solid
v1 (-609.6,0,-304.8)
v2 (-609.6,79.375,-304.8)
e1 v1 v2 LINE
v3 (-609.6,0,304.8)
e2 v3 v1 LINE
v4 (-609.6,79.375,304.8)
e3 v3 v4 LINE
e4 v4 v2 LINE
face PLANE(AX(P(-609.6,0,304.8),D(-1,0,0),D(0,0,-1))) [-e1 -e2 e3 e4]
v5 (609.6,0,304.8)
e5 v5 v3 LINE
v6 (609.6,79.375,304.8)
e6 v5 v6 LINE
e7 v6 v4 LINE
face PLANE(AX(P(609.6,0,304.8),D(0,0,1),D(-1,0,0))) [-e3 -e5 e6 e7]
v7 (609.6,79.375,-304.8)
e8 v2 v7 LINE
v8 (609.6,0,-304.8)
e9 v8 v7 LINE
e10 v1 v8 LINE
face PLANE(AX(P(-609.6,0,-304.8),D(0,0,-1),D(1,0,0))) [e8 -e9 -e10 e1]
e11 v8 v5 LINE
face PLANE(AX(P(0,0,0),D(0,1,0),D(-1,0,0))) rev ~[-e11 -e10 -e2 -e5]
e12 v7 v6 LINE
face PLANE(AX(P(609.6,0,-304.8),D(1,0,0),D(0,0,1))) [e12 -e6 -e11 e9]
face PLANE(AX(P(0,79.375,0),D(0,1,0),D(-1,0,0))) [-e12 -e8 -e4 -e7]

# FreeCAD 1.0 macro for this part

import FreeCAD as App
import Part
import Sketcher
Q = App.Units.Quantity

doc = App.newDocument("Part")
body = doc.addObject("PartDesign::Body", "Body")

sketch1 = doc.addObject("Sketcher::SketchObject", "Sketch")
body.addObject(sketch1)
sketch1.AttachmentSupport = (doc.XZ_Plane, [""])
sketch1.MapMode = "FlatFace"
sketch1.addGeometry([
    Part.LineSegment(App.Vector(610, -305, 0), App.Vector(-610, -305, 0)),
    Part.LineSegment(App.Vector(-610, -305, 0), App.Vector(-610, 305, 0)),
    Part.LineSegment(App.Vector(-610, 305, 0), App.Vector(610, 305, 0)),
    Part.LineSegment(App.Vector(610, 305, 0), App.Vector(610, -305, 0)),
], False)
sketch1.addConstraint([
    Sketcher.Constraint("Coincident", 0, 2, 1, 1),
    Sketcher.Constraint("Coincident", 1, 2, 2, 1),
    Sketcher.Constraint("Coincident", 2, 2, 3, 1),
    Sketcher.Constraint("Coincident", 3, 2, 0, 1),
    Sketcher.Constraint("Horizontal", 0),
    Sketcher.Constraint("Vertical", 1),
    Sketcher.Constraint("Horizontal", 2),
    Sketcher.Constraint("Vertical", 3),
    Sketcher.Constraint("Symmetric", 0, 2, 2, 2, -1, 1),
    Sketcher.Constraint("DistanceX", 0, 2, 0, 1, Q("48 in")),
    Sketcher.Constraint("DistanceY", 1, 1, 1, 2, Q("24 in")),
])
pad1 = doc.addObject("PartDesign::Pad", "Pad")
body.addObject(pad1)
pad1.Profile = sketch1
pad1.Length = Q("3.125 in")
pad1.Reversed = True

doc.recompute()
